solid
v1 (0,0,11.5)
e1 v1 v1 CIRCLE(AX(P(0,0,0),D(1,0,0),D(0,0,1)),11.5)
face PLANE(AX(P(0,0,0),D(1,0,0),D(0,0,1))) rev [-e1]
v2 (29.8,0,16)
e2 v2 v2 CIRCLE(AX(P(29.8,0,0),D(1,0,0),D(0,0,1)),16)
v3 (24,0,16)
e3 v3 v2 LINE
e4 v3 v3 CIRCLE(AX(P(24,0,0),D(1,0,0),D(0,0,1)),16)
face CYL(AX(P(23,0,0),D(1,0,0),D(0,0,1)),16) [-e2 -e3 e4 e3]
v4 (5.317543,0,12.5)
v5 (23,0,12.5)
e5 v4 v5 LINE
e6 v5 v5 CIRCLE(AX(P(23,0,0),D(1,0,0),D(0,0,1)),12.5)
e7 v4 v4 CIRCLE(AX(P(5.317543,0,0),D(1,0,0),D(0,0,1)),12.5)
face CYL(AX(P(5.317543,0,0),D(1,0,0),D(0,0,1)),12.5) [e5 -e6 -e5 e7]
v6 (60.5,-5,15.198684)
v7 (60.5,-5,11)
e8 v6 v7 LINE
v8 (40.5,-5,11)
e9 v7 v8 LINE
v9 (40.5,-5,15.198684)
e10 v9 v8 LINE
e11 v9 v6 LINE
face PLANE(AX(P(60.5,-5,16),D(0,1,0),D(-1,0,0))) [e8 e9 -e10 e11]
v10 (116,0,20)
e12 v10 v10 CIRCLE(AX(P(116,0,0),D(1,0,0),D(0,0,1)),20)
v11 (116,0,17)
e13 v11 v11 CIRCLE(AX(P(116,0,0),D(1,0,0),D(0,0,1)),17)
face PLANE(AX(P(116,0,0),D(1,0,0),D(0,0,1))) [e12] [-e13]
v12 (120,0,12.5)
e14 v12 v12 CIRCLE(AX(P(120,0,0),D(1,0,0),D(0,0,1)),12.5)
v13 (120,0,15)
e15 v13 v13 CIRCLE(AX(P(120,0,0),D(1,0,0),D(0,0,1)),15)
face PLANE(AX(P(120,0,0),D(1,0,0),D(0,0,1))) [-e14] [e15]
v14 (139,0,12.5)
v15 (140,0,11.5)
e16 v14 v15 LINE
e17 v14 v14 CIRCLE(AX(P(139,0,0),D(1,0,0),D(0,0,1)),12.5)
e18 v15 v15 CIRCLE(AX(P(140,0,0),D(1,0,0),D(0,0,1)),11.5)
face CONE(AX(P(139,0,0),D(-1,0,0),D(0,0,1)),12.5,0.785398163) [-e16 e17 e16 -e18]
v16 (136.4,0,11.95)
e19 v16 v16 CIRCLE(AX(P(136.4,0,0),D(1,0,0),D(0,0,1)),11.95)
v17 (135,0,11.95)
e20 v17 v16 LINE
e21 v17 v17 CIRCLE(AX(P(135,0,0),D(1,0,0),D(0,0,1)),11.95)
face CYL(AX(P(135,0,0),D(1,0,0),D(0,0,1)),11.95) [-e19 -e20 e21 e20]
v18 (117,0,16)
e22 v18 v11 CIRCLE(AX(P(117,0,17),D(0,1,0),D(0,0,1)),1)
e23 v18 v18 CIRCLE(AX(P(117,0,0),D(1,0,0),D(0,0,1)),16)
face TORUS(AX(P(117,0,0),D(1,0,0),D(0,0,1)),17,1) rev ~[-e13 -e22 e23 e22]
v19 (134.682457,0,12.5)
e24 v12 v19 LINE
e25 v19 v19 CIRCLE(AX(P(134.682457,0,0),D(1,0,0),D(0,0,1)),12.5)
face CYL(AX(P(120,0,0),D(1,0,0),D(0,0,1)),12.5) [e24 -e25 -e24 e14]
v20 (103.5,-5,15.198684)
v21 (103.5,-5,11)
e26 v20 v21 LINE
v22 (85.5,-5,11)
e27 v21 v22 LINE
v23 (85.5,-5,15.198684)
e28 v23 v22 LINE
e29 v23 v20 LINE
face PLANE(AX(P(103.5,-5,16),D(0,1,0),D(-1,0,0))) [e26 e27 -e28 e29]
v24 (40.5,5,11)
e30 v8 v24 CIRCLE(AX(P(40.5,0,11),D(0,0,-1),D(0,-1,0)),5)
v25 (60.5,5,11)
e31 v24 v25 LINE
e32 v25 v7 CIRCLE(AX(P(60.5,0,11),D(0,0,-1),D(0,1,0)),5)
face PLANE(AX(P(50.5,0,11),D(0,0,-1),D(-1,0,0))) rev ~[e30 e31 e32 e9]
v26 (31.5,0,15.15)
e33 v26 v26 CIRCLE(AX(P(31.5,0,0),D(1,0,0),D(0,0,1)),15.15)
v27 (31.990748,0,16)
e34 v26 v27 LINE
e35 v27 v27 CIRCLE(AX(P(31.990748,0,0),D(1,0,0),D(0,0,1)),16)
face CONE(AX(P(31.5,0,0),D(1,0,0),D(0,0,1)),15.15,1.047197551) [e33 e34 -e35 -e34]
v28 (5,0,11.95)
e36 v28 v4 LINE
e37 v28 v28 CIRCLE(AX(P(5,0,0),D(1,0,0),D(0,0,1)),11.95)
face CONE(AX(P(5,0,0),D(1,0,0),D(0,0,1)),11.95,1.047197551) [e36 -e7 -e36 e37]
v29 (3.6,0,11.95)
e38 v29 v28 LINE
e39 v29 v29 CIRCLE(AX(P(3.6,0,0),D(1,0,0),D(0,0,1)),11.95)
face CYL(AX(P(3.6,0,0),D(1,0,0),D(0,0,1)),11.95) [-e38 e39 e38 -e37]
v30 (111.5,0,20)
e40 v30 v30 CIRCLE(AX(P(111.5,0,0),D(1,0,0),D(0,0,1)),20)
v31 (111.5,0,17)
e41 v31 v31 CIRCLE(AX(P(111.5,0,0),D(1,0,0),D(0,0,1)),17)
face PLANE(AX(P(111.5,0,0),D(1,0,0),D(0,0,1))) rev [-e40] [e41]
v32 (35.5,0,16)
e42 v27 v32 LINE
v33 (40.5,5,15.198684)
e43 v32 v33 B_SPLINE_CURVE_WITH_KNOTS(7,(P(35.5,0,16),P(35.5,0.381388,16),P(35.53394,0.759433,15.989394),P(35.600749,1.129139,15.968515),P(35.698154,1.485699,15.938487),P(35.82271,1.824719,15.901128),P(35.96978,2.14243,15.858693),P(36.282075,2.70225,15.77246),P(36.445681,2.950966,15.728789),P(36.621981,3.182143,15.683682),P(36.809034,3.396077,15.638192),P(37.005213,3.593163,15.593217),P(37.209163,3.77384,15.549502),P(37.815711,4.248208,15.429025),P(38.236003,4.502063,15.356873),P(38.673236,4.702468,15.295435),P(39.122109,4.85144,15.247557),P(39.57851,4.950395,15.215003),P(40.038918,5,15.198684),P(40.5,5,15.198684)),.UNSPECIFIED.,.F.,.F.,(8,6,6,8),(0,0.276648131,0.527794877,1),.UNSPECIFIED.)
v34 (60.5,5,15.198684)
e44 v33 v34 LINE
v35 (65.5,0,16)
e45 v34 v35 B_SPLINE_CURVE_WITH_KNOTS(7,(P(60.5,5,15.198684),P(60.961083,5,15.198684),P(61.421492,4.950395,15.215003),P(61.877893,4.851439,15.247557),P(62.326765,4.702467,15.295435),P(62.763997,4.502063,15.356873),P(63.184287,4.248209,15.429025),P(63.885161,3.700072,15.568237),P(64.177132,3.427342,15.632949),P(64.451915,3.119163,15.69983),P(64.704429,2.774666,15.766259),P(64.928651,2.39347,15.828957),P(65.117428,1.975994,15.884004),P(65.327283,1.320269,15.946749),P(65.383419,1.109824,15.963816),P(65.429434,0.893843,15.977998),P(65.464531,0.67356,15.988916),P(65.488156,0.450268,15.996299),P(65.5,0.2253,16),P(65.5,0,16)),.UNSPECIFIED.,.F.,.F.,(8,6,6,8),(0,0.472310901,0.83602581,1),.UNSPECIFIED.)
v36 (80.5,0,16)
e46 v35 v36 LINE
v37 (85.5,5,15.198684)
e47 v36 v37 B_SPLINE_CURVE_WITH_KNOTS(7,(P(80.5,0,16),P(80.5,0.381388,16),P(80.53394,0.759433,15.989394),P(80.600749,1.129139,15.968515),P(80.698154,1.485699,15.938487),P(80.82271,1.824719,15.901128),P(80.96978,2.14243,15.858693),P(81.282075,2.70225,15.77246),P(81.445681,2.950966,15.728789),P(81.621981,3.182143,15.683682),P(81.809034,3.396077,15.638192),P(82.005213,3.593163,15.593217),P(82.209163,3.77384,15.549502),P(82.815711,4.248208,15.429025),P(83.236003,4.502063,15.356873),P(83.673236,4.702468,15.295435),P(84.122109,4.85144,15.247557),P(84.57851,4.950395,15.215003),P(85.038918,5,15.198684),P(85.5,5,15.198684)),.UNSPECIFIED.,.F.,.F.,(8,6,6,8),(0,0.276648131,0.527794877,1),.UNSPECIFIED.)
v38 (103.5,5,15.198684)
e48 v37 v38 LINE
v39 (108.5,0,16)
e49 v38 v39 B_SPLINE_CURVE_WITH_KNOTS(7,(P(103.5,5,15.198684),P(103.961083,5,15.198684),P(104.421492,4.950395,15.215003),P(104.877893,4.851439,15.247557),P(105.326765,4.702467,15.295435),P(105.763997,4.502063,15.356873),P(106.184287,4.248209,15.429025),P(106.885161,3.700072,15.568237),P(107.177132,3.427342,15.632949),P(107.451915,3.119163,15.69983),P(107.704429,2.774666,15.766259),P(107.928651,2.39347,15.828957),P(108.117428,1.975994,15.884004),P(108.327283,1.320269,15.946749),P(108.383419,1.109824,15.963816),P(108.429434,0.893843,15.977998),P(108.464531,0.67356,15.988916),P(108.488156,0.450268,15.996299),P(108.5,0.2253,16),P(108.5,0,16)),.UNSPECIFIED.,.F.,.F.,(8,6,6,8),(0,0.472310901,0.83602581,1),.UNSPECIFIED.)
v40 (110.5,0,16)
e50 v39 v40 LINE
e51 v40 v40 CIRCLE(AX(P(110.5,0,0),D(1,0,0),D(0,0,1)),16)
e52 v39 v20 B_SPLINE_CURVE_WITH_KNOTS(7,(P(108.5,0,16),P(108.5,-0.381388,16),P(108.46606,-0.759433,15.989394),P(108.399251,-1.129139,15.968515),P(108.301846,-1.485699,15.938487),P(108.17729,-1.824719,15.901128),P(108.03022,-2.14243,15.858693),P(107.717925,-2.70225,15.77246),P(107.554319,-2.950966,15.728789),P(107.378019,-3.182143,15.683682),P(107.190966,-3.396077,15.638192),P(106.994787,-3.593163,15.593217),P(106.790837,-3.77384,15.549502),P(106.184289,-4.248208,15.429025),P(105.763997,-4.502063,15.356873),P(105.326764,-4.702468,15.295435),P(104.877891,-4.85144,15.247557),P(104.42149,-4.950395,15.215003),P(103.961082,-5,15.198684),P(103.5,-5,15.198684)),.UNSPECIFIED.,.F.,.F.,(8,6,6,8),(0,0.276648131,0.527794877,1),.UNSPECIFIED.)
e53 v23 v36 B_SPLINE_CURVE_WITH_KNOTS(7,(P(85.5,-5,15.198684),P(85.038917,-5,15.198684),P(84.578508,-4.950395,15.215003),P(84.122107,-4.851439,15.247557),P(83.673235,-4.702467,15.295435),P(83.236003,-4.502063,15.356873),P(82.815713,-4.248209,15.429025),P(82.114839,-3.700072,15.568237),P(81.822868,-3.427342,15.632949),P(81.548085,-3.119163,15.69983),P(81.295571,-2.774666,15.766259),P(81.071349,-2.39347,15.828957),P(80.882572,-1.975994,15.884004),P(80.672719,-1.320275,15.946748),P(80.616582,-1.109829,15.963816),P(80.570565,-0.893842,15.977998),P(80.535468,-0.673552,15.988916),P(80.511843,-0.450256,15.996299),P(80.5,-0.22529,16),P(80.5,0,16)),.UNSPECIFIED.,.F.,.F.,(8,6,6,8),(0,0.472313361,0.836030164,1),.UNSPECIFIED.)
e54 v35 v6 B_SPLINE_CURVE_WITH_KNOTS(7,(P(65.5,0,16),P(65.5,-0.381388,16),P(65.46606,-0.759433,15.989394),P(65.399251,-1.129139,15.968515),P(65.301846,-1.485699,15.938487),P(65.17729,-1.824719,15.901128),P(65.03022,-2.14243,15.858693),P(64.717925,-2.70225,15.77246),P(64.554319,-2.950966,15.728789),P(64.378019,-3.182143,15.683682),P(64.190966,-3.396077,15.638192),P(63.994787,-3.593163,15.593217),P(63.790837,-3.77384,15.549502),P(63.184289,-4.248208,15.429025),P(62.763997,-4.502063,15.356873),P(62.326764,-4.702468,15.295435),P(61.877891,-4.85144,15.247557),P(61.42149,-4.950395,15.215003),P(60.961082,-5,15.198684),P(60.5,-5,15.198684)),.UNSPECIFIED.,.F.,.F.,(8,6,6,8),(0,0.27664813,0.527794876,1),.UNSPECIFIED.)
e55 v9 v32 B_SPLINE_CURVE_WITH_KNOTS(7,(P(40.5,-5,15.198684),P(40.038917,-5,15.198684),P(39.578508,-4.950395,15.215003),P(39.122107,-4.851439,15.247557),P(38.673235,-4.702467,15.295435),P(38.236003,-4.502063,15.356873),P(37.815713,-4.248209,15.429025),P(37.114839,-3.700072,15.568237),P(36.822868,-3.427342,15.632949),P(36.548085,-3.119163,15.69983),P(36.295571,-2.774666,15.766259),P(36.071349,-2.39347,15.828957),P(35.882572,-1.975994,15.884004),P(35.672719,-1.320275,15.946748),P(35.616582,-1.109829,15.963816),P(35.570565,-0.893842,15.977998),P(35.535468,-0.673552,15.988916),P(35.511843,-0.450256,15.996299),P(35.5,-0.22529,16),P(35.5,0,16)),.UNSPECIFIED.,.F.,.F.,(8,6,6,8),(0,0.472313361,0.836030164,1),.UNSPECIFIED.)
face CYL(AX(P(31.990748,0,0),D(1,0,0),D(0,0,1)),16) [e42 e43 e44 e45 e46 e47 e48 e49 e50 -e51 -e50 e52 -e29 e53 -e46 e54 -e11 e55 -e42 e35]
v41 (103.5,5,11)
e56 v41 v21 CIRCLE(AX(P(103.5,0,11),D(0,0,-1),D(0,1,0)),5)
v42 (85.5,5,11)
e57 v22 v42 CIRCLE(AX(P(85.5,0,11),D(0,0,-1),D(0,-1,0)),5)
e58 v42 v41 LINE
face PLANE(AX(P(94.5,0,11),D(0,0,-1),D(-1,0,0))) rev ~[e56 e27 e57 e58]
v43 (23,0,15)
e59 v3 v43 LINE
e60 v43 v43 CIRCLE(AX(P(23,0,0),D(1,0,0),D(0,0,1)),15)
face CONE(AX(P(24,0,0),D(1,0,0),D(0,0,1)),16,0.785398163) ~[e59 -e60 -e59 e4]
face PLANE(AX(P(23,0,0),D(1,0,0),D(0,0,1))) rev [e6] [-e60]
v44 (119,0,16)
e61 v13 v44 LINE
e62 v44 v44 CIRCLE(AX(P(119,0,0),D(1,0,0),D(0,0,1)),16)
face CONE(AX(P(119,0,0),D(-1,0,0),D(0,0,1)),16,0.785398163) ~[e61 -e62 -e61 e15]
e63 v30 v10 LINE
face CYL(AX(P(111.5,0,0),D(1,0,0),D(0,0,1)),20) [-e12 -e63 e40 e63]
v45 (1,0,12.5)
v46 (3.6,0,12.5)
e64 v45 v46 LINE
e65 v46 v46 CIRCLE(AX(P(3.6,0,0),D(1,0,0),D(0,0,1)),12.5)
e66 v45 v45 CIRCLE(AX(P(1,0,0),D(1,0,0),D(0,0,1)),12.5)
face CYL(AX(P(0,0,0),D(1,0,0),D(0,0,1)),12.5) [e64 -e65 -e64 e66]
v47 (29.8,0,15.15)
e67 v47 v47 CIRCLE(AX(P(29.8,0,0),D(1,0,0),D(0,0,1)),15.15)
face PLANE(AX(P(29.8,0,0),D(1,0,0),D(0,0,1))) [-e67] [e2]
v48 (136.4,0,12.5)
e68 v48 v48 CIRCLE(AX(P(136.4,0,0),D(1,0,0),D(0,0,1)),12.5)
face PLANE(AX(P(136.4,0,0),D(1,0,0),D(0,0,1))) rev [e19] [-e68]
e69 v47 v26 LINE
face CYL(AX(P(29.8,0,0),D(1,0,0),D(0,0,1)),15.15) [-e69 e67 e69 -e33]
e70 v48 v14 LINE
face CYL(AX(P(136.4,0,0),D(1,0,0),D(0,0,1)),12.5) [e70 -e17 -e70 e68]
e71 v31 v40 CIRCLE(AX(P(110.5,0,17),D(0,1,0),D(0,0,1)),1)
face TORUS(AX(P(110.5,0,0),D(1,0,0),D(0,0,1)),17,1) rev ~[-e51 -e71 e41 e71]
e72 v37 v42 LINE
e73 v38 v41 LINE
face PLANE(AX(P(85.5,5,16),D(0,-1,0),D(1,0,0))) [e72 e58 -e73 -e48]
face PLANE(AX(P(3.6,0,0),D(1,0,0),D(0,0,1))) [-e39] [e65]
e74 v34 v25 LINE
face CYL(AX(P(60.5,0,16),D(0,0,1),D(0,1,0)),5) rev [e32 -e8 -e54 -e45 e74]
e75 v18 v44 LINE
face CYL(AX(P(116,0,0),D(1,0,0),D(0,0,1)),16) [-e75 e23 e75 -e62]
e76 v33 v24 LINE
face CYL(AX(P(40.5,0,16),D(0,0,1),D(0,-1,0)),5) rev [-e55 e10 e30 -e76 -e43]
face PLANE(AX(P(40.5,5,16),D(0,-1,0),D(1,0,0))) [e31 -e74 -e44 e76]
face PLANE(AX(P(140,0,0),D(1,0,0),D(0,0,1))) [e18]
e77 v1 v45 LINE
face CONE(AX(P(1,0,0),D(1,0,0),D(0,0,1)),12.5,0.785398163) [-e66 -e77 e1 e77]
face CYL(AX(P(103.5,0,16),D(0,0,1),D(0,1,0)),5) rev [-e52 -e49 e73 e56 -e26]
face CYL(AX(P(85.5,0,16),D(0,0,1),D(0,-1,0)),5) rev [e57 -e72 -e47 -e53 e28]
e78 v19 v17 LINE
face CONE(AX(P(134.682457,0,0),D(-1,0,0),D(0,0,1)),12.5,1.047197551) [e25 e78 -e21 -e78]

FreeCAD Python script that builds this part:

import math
import FreeCAD as App
import Part
import Sketcher
from FreeCAD import Vector
Q = App.Units.Quantity


def edges_at(feature, points):
    """Names of the edges that pass closest to the given points."""
    edges = feature.Shape.Edges
    near = lambda p: min(range(len(edges)), key=lambda i: edges[i].distToShape(Part.Vertex(*p))[0])
    return sorted({f"Edge{near(p) + 1}" for p in points})


def add_polygon(sketch, points):
    """Adds a closed chain of lines whose ends are joined by coincident constraints."""
    first, n = sketch.GeometryCount, len(points)
    for a, b in zip(points, points[1:] + points[:1]):
        sketch.addGeometry(Part.LineSegment(App.Vector(*a, 0), App.Vector(*b, 0)), False)
    for i in range(n):
        sketch.addConstraint(Sketcher.Constraint("Coincident", first + i, 2, first + (i + 1) % n, 1))

doc = App.newDocument("Part")
body = doc.addObject("PartDesign::Body", "Body")

sketch1 = body.newObject("Sketcher::SketchObject", "Sketch")
sketch1.AttachmentSupport = (doc.getObject("XY_Plane"), [""])
sketch1.MapMode = "FlatFace"
add_polygon(sketch1, [(0, 12.5), (0, 0), (140, 0), (140, 12.5), (136.4, 12.5), (136.4, 11.95), (135, 11.95), (134.682457, 12.5), (120, 12.5), (120, 16), (116, 16), (116, 20), (111.5, 20), (111.5, 16), (31.990748, 16), (31.5, 15.15), (29.8, 15.15), (29.8, 16), (23, 16), (23, 12.5), (5.317543, 12.5), (5, 11.95), (3.6, 11.95), (3.6, 12.5)])
sketch1.addConstraint([
    Sketcher.Constraint("Vertical", 0),
    Sketcher.Constraint("Horizontal", 1),
    Sketcher.Constraint("Vertical", 2),
    Sketcher.Constraint("Horizontal", 3),
    Sketcher.Constraint("Vertical", 4),
    Sketcher.Constraint("Horizontal", 5),
    Sketcher.Constraint("Horizontal", 7),
    Sketcher.Constraint("Vertical", 8),
    Sketcher.Constraint("Horizontal", 9),
    Sketcher.Constraint("Vertical", 10),
    Sketcher.Constraint("Horizontal", 11),
    Sketcher.Constraint("Vertical", 12),
    Sketcher.Constraint("Horizontal", 13),
    Sketcher.Constraint("Horizontal", 15),
    Sketcher.Constraint("Vertical", 16),
    Sketcher.Constraint("Horizontal", 17),
    Sketcher.Constraint("Vertical", 18),
    Sketcher.Constraint("Horizontal", 19),
    Sketcher.Constraint("Horizontal", 21),
    Sketcher.Constraint("Vertical", 22),
    Sketcher.Constraint("Horizontal", 23),
    Sketcher.Constraint("Coincident", 0, 2, -1, 1),
    Sketcher.Constraint("Parallel", 14, 20),
    Sketcher.Constraint("Horizontal", 3, 2, 6, 2),
    Sketcher.Constraint("Horizontal", 9, 2, 12, 2),
    Sketcher.Constraint("Horizontal", 13, 2, 16, 2),
    Sketcher.Constraint("Horizontal", 7, 2, 18, 2),
    Sketcher.Constraint("Horizontal", 5, 2, 20, 2),
    Sketcher.Constraint("Horizontal", 19, 2, 22, 2),
    Sketcher.Constraint("Equal", 5, 21),
    Sketcher.Constraint("Equal", 3, 23),
    Sketcher.Constraint("Equal", 9, 10),
    Sketcher.Constraint("Equal", 6, 20),
    Sketcher.Constraint("DistanceX", 1, 1, 1, 2, Q("140 mm")),
    Sketcher.Constraint("DistanceX", 9, 2, 9, 1, Q("4 mm")),
    Sketcher.Constraint("Angle", 6, Q("120 deg")),
    Sketcher.Constraint("DistanceX", 3, 2, 3, 1, Q("3.6 mm")),
    Sketcher.Constraint("DistanceX", 5, 2, 5, 1, Q("1.4 mm")),
    Sketcher.Constraint("DistanceX", 11, 2, 11, 1, Q("4.5 mm")),
    Sketcher.Constraint("DistanceX", 15, 2, 15, 1, Q("1.7 mm")),
    Sketcher.Constraint("DistanceX", 17, 2, 17, 1, Q("6.8 mm")),
    Sketcher.Constraint("DistanceY", 0, 2, 0, 1, Q("12.5 mm")),
    Sketcher.Constraint("DistanceY", 8, 1, 8, 2, Q("3.5 mm")),
    Sketcher.Constraint("DistanceX", -1, 1, 7, 2, Q("120 mm")),
    Sketcher.Constraint("DistanceX", -1, 1, 17, 2, Q("23 mm")),
    Sketcher.Constraint("DistanceY", 4, 2, 4, 1, Q("0.55 mm")),
    Sketcher.Constraint("DistanceY", 16, 1, 16, 2, Q("0.85 mm")),
])
revolution = body.newObject("PartDesign::Revolution", "Revolution")
revolution.Profile = sketch1
revolution.ReferenceAxis = (sketch1, ["H_Axis"])
revolution.Angle = 360

sketch2 = body.newObject("Sketcher::SketchObject", "Sketch001")
sketch2.AttachmentSupport = (doc.getObject("XY_Plane"), [""])
sketch2.MapMode = "FlatFace"
sketch2.AttachmentOffset = App.Placement(Vector(0, 0, 16), App.Rotation())
sketch2.addGeometry([
    Part.LineSegment(Vector(60.5, 5, 0), Vector(40.5, 5, 0)),
    Part.ArcOfCircle(Part.Circle(Vector(40.5, 0, 0), Vector(0, 0, 1), 5), math.radians(90), math.radians(270)),
    Part.LineSegment(Vector(40.5, -5, 0), Vector(60.5, -5, 0)),
    Part.ArcOfCircle(Part.Circle(Vector(60.5, 0, 0), Vector(0, 0, 1), 5), math.radians(-90), math.radians(90)),
    Part.LineSegment(Vector(103.5, 5, 0), Vector(85.5, 5, 0)),
    Part.ArcOfCircle(Part.Circle(Vector(85.5, 0, 0), Vector(0, 0, 1), 5), math.radians(90), math.radians(270)),
    Part.LineSegment(Vector(85.5, -5, 0), Vector(103.5, -5, 0)),
    Part.ArcOfCircle(Part.Circle(Vector(103.5, 0, 0), Vector(0, 0, 1), 5), math.radians(-90), math.radians(90)),
], False)
sketch2.addConstraint([
    Sketcher.Constraint("Tangent", 0, 2, 1, 1),
    Sketcher.Constraint("Tangent", 1, 2, 2, 1),
    Sketcher.Constraint("Tangent", 2, 2, 3, 1),
    Sketcher.Constraint("Tangent", 3, 2, 0, 1),
    Sketcher.Constraint("Tangent", 4, 2, 5, 1),
    Sketcher.Constraint("Tangent", 5, 2, 6, 1),
    Sketcher.Constraint("Tangent", 6, 2, 7, 1),
    Sketcher.Constraint("Tangent", 7, 2, 4, 1),
    Sketcher.Constraint("Horizontal", 0),
    Sketcher.Constraint("Horizontal", 2),
    Sketcher.Constraint("Horizontal", 4),
    Sketcher.Constraint("Horizontal", 6),
    Sketcher.Constraint("Equal", 3, 5),
    Sketcher.Constraint("PointOnObject", 1, 3, -1),
    Sketcher.Constraint("PointOnObject", 5, 3, -1),
    Sketcher.Constraint("Radius", 1, Q("5 mm")),
    Sketcher.Constraint("DistanceX", 0, 2, 0, 1, Q("20 mm")),
    Sketcher.Constraint("DistanceX", 4, 2, 4, 1, Q("18 mm")),
    Sketcher.Constraint("DistanceX", 3, 3, 5, 3, Q("25 mm")),
    Sketcher.Constraint("DistanceX", -1, 1, 1, 3, Q("40.5 mm")),
])
pocket1 = body.newObject("PartDesign::Pocket", "Pocket")
pocket1.Profile = sketch2
pocket1.Length = 5
doc.recompute()

chamfer = body.newObject("PartDesign::Chamfer", "Chamfer")
chamfer.Base = (pocket1, edges_at(pocket1, [(0, 0, -12.5)]))
chamfer.Size = 1
doc.recompute()

chamfer2 = body.newObject("PartDesign::Chamfer", "Chamfer001")
chamfer2.Base = (chamfer, edges_at(chamfer, [(140, 0, -12.5)]))
chamfer2.Size = 1
doc.recompute()

chamfer3 = body.newObject("PartDesign::Chamfer", "Chamfer002")
chamfer3.Base = (chamfer2, edges_at(chamfer2, [(120, 0, -16), (23, 0, -16)]))
chamfer3.Size = 1
doc.recompute()

fillet = body.newObject("PartDesign::Fillet", "Fillet")
fillet.Base = (chamfer3, edges_at(chamfer3, [(116, 0, -16), (111.5, 0, -16)]))
fillet.Radius = 1

doc.recompute()
